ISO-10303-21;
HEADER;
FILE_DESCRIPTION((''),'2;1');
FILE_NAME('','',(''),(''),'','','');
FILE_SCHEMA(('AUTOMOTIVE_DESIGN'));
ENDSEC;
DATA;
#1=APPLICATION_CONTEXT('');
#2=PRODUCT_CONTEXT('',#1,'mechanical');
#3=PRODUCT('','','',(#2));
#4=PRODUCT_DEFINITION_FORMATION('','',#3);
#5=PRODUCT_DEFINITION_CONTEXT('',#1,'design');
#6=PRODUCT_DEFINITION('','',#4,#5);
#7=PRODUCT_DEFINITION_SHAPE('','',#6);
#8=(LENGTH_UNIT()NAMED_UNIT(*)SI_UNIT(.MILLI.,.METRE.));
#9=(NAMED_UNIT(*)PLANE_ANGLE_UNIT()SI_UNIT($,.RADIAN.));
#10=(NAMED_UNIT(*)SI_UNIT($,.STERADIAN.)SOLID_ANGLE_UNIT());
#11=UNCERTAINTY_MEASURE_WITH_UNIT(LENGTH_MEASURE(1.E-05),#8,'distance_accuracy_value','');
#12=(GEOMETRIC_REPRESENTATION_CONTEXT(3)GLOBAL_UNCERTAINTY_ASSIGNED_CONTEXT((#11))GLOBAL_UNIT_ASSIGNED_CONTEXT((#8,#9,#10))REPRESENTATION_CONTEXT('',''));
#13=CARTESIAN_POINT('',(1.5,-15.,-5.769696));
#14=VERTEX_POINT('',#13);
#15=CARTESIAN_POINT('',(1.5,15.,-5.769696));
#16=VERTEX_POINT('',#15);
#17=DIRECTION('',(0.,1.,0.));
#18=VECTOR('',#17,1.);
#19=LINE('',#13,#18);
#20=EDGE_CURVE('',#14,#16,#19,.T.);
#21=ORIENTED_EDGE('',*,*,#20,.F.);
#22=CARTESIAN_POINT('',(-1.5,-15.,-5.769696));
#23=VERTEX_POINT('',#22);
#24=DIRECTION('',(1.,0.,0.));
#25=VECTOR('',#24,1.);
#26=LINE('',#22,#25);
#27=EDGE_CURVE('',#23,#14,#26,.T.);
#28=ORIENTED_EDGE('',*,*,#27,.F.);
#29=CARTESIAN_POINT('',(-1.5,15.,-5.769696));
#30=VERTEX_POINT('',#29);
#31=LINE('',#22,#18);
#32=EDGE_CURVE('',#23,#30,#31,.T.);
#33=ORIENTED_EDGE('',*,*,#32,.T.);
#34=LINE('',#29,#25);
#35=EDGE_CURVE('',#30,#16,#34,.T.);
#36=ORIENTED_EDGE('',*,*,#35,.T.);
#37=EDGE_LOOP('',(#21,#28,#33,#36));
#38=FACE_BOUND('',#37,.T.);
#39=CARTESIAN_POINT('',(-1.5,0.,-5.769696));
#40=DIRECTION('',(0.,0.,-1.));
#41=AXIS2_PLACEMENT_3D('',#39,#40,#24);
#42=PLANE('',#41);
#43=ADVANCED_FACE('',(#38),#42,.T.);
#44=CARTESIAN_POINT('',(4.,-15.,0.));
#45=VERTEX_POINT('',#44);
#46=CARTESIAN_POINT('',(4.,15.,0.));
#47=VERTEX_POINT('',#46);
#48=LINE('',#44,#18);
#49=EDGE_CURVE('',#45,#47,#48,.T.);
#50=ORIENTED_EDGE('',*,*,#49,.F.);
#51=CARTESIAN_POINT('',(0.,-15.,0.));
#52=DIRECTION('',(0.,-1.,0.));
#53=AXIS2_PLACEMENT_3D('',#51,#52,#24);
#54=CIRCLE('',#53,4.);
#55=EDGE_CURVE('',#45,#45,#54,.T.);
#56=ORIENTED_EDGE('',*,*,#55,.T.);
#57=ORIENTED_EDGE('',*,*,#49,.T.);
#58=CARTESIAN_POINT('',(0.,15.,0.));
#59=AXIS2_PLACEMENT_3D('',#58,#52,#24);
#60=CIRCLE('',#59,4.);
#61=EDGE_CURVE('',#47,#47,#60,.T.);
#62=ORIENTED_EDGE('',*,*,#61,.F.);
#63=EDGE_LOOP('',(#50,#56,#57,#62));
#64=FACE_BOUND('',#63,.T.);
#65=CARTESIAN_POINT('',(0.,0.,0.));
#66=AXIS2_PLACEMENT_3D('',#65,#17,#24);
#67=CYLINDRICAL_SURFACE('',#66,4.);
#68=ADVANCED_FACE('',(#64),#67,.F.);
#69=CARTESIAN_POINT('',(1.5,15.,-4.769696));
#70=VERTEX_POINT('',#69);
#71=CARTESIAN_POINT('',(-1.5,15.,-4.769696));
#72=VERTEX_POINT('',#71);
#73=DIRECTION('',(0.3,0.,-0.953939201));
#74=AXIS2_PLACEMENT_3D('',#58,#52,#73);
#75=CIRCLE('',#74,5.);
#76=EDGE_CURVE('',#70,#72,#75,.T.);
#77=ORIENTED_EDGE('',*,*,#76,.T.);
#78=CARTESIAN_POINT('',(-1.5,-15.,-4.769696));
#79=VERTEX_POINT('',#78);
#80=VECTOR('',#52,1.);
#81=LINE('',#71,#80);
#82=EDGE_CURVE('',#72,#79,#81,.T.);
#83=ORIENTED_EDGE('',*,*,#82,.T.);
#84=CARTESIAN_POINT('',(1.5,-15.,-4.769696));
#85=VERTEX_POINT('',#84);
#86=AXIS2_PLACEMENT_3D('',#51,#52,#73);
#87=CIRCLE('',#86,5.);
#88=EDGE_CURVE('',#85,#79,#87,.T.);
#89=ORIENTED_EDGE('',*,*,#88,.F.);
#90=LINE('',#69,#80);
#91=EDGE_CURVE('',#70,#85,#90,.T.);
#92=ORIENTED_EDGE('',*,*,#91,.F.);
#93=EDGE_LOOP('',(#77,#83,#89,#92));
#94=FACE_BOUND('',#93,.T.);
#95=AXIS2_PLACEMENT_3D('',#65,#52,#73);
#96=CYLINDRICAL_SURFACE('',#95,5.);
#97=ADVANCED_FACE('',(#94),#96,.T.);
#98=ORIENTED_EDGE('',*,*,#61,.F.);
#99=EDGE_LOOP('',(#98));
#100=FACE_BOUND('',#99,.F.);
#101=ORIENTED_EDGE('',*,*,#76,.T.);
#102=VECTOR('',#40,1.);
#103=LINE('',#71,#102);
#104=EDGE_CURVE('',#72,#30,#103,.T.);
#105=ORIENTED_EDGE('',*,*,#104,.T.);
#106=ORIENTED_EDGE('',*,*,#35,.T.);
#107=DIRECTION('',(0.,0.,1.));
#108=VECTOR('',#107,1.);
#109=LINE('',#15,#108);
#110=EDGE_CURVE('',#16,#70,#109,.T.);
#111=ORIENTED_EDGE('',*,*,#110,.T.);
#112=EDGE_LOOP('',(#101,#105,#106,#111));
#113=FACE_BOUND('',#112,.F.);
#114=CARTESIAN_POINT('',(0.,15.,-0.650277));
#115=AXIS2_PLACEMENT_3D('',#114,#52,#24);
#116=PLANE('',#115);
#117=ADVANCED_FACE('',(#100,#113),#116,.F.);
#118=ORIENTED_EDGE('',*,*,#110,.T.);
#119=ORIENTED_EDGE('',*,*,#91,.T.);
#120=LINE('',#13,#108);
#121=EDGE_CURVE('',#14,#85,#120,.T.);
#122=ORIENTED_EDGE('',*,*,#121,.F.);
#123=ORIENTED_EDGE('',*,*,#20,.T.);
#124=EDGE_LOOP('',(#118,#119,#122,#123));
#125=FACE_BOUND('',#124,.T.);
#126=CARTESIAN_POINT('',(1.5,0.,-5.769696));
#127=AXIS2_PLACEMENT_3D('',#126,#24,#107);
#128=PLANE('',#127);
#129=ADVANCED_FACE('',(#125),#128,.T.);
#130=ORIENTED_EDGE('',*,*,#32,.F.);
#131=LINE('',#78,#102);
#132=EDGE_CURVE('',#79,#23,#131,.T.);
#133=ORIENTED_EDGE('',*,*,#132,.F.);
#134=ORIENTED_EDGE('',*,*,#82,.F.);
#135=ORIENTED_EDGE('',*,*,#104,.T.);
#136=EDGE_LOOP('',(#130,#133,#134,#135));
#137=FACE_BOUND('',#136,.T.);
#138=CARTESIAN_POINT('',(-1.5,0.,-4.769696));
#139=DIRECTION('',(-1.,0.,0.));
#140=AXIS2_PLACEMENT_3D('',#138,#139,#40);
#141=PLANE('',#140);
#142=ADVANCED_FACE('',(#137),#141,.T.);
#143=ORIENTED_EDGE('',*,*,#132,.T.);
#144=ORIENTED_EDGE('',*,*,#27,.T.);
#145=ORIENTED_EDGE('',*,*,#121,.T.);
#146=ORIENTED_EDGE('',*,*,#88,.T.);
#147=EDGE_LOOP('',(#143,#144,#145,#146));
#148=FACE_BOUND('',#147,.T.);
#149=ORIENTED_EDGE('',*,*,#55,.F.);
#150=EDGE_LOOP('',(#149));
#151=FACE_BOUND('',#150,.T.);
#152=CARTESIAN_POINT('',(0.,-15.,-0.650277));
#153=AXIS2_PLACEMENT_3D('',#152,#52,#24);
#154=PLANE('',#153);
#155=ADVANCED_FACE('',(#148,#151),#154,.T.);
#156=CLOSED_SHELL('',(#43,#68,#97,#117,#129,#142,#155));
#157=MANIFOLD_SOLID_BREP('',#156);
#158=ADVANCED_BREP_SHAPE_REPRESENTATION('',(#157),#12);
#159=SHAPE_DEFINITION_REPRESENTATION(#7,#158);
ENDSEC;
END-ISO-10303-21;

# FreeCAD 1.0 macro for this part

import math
import FreeCAD as App
import Part
import Sketcher

V = App.Vector
Q = App.Units.Quantity

doc = App.newDocument("Part")
body = doc.addObject("PartDesign::Body", "Body")

# Sketch on XZ plane
sketch1 = body.newObject("Sketcher::SketchObject", "Sketch")
sketch1.AttachmentSupport = (doc.getObject("XZ_Plane"), [""])
sketch1.MapMode = "FlatFace"
sketch1.addGeometry(Part.LineSegment(V(1.5, -5.769696, 0), V(1.5, -4.769696, 0)), False)
sketch1.addGeometry(Part.ArcOfCircle(Part.Circle(V(0, 0, 0), V(0, 0, 1), 5), math.radians(-72.542397), math.radians(252.542397)), False)
sketch1.addGeometry(Part.LineSegment(V(-1.5, -4.769696, 0), V(-1.5, -5.769696, 0)), False)
sketch1.addGeometry(Part.LineSegment(V(-1.5, -5.769696, 0), V(1.5, -5.769696, 0)), False)
sketch1.addGeometry(Part.Circle(V(0, 0, 0), V(0, 0, 1), 4), False)
sketch1.addConstraint(Sketcher.Constraint("Coincident", 0, 2, 1, 1))
sketch1.addConstraint(Sketcher.Constraint("Coincident", 1, 2, 2, 1))
sketch1.addConstraint(Sketcher.Constraint("Coincident", 2, 2, 3, 1))
sketch1.addConstraint(Sketcher.Constraint("Coincident", 3, 2, 0, 1))
sketch1.addConstraint(Sketcher.Constraint("Vertical", 0))
sketch1.addConstraint(Sketcher.Constraint("Vertical", 2))
sketch1.addConstraint(Sketcher.Constraint("Horizontal", 3))
sketch1.addConstraint(Sketcher.Constraint("Coincident", 1, 3, -1, 1))
sketch1.addConstraint(Sketcher.Constraint("Coincident", 4, 3, -1, 1))
sketch1.addConstraint(Sketcher.Constraint("Horizontal", 0, 2, 1, 2))
sketch1.addConstraint(Sketcher.Constraint("Diameter", 4, Q("8 mm")))
sketch1.addConstraint(Sketcher.Constraint("Radius", 1, Q("5 mm")))
sketch1.addConstraint(Sketcher.Constraint("DistanceX", 3, 1, 3, 2, Q("3 mm")))
sketch1.addConstraint(Sketcher.Constraint("DistanceY", 0, 1, 0, 2, Q("1 mm")))
pad1 = body.newObject("PartDesign::Pad", "Pad")
pad1.Profile = sketch1
pad1.Length = 30
pad1.Midplane = True

doc.recompute()
